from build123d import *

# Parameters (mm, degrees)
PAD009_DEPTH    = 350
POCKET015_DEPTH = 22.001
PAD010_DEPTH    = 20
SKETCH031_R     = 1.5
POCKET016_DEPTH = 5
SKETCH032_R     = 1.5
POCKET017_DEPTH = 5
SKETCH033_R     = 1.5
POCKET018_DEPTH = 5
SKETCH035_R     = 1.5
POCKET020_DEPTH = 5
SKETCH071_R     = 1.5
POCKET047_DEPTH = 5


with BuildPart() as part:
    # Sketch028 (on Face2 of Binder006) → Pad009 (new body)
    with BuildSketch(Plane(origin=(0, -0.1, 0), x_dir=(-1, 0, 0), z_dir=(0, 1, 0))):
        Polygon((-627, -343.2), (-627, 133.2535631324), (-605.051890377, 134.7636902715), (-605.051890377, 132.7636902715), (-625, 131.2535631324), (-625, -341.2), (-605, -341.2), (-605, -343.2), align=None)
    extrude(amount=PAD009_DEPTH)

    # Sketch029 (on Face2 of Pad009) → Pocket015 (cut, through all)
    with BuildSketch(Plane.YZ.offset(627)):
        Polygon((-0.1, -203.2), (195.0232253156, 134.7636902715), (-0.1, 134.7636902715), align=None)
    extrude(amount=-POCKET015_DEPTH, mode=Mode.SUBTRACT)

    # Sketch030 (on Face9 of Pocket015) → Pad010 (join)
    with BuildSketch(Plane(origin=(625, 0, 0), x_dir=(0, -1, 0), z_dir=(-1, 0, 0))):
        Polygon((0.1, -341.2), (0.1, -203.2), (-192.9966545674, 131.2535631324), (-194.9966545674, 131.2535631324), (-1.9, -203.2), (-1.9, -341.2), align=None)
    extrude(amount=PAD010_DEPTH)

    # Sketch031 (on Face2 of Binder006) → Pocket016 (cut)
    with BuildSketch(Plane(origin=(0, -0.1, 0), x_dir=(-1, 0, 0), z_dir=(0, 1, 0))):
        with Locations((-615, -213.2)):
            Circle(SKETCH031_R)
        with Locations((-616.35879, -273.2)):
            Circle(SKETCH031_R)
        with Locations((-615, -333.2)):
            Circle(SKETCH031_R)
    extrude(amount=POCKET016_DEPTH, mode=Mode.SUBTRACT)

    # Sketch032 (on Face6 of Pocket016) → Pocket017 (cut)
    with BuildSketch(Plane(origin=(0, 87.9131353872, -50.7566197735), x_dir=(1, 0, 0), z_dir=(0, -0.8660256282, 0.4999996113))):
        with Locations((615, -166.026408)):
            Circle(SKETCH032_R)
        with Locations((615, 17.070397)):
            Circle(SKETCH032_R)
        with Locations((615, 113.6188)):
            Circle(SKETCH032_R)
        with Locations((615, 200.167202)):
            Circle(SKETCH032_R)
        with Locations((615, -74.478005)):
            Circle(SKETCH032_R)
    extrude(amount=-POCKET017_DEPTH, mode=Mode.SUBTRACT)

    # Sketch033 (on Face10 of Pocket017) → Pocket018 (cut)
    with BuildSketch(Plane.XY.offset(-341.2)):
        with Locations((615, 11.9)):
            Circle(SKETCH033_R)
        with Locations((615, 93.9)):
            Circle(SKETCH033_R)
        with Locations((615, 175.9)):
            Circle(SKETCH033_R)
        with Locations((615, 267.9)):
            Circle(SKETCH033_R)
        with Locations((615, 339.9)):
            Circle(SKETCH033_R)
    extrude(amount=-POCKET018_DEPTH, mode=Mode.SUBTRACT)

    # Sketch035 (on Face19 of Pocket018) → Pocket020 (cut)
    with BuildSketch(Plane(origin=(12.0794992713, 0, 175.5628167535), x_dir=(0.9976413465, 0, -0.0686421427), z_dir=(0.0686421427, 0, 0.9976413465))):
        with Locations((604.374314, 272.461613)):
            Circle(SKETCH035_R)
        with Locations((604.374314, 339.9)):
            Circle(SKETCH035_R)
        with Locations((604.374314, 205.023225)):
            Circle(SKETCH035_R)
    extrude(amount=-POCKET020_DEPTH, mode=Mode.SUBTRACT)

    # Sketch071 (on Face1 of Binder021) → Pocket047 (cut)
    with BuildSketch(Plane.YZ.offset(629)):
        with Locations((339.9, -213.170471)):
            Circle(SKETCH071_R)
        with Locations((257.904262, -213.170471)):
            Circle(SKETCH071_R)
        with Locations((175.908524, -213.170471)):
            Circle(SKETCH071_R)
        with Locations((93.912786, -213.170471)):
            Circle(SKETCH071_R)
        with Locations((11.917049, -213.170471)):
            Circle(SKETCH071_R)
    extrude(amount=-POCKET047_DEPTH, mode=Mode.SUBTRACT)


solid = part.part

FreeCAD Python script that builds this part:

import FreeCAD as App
import Part
import Sketcher

V = App.Vector
Q = App.Units.Quantity


def add_polygon(sketch, points):
    """Adds a closed chain of lines whose ends are joined by coincident constraints."""
    first, n = sketch.GeometryCount, len(points)
    for a, b in zip(points, points[1:] + points[:1]):
        sketch.addGeometry(Part.LineSegment(App.Vector(*a, 0), App.Vector(*b, 0)), False)
    for i in range(n):
        sketch.addConstraint(Sketcher.Constraint("Coincident", first + i, 2, first + (i + 1) % n, 1))

doc = App.newDocument("Part")
body = doc.addObject("PartDesign::Body", "Body")

# Sketch on XZ plane
sketch1 = body.newObject("Sketcher::SketchObject", "Sketch")
sketch1.AttachmentSupport = (doc.getObject("XZ_Plane"), [""])
sketch1.MapMode = "FlatFace"
sketch1.AttachmentOffset = App.Placement(V(0, 0, 0.1), App.Rotation())
add_polygon(sketch1, [(627, 133.253563), (627, -343.2), (605, -343.2), (605, -341.2), (625, -341.2), (625, 131.253563), (605.05189, 132.76369), (605.05189, 134.76369)])  # lines 0-7
sketch1.addConstraint([
    Sketcher.Constraint("Vertical", 0),
    Sketcher.Constraint("Horizontal", 1),
    Sketcher.Constraint("Vertical", 2),
    Sketcher.Constraint("Horizontal", 3),
    Sketcher.Constraint("Vertical", 4),
    Sketcher.Constraint("Vertical", 6),
    Sketcher.Constraint("Equal", 2, 6),
    Sketcher.Constraint("DistanceX", 1, 2, 1, 1, Q("22 mm")),
    Sketcher.Constraint("DistanceX", 3, 1, 3, 2, Q("20 mm")),
    Sketcher.Constraint("DistanceY", 2, 1, 2, 2, Q("2 mm")),
    Sketcher.Constraint("Distance", 7, Q("22 mm")),
    Sketcher.Constraint("DistanceX", -1, 1, 0, 2, Q("627 mm")),
    Sketcher.Constraint("DistanceY", 4, 2, 7, 2, Q("2 mm")),
    Sketcher.Constraint("DistanceY", 0, 2, -1, 1, Q("343.2 mm")),
    Sketcher.Constraint("Distance", 5, Q("20.005188 mm")),
    Sketcher.Constraint("DistanceY", 0, 2, 0, 1, Q("476.453563 mm")),
])
pad1 = body.newObject("PartDesign::Pad", "Pad")
pad1.Profile = sketch1
pad1.Length = 350
pad1.Reversed = True

# Sketch on YZ plane
sketch2 = body.newObject("Sketcher::SketchObject", "Sketch001")
sketch2.AttachmentSupport = (doc.getObject("YZ_Plane"), [""])
sketch2.MapMode = "FlatFace"
sketch2.AttachmentOffset = App.Placement(V(0, 0, 627), App.Rotation())
add_polygon(sketch2, [(0, -203), (195, 135), (0, 135)])  # lines 0-2
sketch2.addConstraint([
    Sketcher.Constraint("Horizontal", 1),
    Sketcher.Constraint("Vertical", 2),
    Sketcher.Constraint("DistanceX", 1, 2, -1, 1, Q("0.1 mm")),
    Sketcher.Constraint("DistanceY", 2, 2, -1, 1, Q("203.2 mm")),
    Sketcher.Constraint("DistanceY", 2, 2, 2, 1, Q("337.96369 mm")),
    Sketcher.Constraint("DistanceX", 1, 2, 1, 1, Q("195.123225 mm")),
])
pocket1 = body.newObject("PartDesign::Pocket", "Pocket")
pocket1.Profile = sketch2
pocket1.Type = "ThroughAll"

# Sketch on YZ plane
sketch3 = body.newObject("Sketcher::SketchObject", "Sketch002")
sketch3.AttachmentSupport = (doc.getObject("YZ_Plane"), [""])
sketch3.MapMode = "FlatFace"
sketch3.AttachmentOffset = App.Placement(V(0, 0, 625), App.Rotation())
add_polygon(sketch3, [(-0.1, -341.2), (-0.1, -203.2), (193, 131.3), (195, 131.3), (1.9, -203.2), (1.9, -341.2)])  # lines 0-5
sketch3.addConstraint([
    Sketcher.Constraint("Vertical", 0),
    Sketcher.Constraint("Horizontal", 2),
    Sketcher.Constraint("Vertical", 4),
    Sketcher.Constraint("Horizontal", 5),
    Sketcher.Constraint("Parallel", 1, 3),
    Sketcher.Constraint("Horizontal", 0, 2, 3, 2),
    Sketcher.Constraint("DistanceX", 2, 1, 2, 2, Q("2 mm")),
    Sketcher.Constraint("DistanceY", 0, 1, 0, 2, Q("138 mm")),
    Sketcher.Constraint("DistanceX", 0, 2, -1, 1, Q("0.1 mm")),
    Sketcher.Constraint("DistanceY", 0, 2, -1, 1, Q("203.2 mm")),
    Sketcher.Constraint("Distance", 1, Q("386.193609 mm")),
    Sketcher.Constraint("DistanceX", -1, 1, 1, 2, Q("192.996655 mm")),
])
pad2 = body.newObject("PartDesign::Pad", "Pad001")
pad2.Profile = sketch3
pad2.Length = 20
pad2.Reversed = True

# Sketch on XZ plane
sketch4 = body.newObject("Sketcher::SketchObject", "Sketch003")
sketch4.AttachmentSupport = (doc.getObject("XZ_Plane"), [""])
sketch4.MapMode = "FlatFace"
sketch4.AttachmentOffset = App.Placement(V(0, 0, 0.1), App.Rotation())
sketch4.addGeometry([
    Part.Circle(V(615, -213.2, 0), V(0, 0, 1), 1.5),
    Part.Circle(V(616.4, -273.2, 0), V(0, 0, 1), 1.5),
    Part.Circle(V(615, -333.2, 0), V(0, 0, 1), 1.5),
], False)
sketch4.addConstraint([
    Sketcher.Constraint("Equal", 0, 1),
    Sketcher.Constraint("Equal", 1, 2),
    Sketcher.Constraint("Vertical", 0, 3, 2, 3),
    Sketcher.Constraint("Diameter", 0, Q("3 mm")),
    Sketcher.Constraint("DistanceX", -1, 1, 0, 3, Q("615 mm")),
    Sketcher.Constraint("DistanceY", 1, 3, 0, 3, Q("60 mm")),
    Sketcher.Constraint("DistanceY", 2, 3, 1, 3, Q("60 mm")),
    Sketcher.Constraint("DistanceY", 0, 3, -1, 1, Q("213.2 mm")),
    Sketcher.Constraint("DistanceX", -1, 1, 1, 3, Q("616.35879 mm")),
])
pocket2 = body.newObject("PartDesign::Pocket", "Pocket001")
pocket2.Profile = sketch4
pocket2.Length = 5

# Sketch on an angled plane
sketch5 = body.newObject("Sketcher::SketchObject", "Sketch004")
sketch5.Placement = App.Placement(V(0, 87.913135, -50.75662), App.Rotation(V(1, 0, 0), V(0, 0.499999611, 0.866025628), V(0, -0.866025628, 0.499999611), "ZXY"))
sketch5.addGeometry([
    Part.Circle(V(615, -166, 0), V(0, 0, 1), 1.5),  # 0
    Part.Circle(V(615, 17.1, 0), V(0, 0, 1), 1.5),  # 1
    Part.Circle(V(615, 113.6, 0), V(0, 0, 1), 1.5),  # 2
    Part.Circle(V(615, 200.2, 0), V(0, 0, 1), 1.5),  # 3
    Part.Circle(V(615, -74.5, 0), V(0, 0, 1), 1.5),  # 4
], False)
sketch5.addConstraint([
    Sketcher.Constraint("Equal", 0, 1),
    Sketcher.Constraint("Equal", 1, 2),
    Sketcher.Constraint("Equal", 2, 3),
    Sketcher.Constraint("Equal", 3, 4),
    Sketcher.Constraint("Vertical", 0, 3, 1, 3),
    Sketcher.Constraint("Vertical", 1, 3, 2, 3),
    Sketcher.Constraint("Vertical", 2, 3, 3, 3),
    Sketcher.Constraint("Vertical", 3, 3, 4, 3),
    Sketcher.Constraint("Diameter", 0, Q("3 mm")),
    Sketcher.Constraint("DistanceX", -1, 1, 0, 3, Q("615 mm")),
    Sketcher.Constraint("DistanceY", -1, 1, 2, 3, Q("113.6188 mm")),
    Sketcher.Constraint("DistanceY", -1, 1, 3, 3, Q("200.167202 mm")),
    Sketcher.Constraint("DistanceY", 4, 3, 1, 3, Q("91.548402 mm")),
    Sketcher.Constraint("DistanceY", 0, 3, 3, 3, Q("366.19361 mm")),
    Sketcher.Constraint("DistanceY", -1, 1, 1, 3, Q("17.070397 mm")),
])
pocket3 = body.newObject("PartDesign::Pocket", "Pocket002")
pocket3.Profile = sketch5
pocket3.Length = 5

# Sketch on XY plane
sketch6 = body.newObject("Sketcher::SketchObject", "Sketch005")
sketch6.AttachmentSupport = (doc.getObject("XY_Plane"), [""])
sketch6.MapMode = "FlatFace"
sketch6.AttachmentOffset = App.Placement(V(0, 0, -341.2), App.Rotation())
sketch6.addGeometry([
    Part.Circle(V(615, 11.9, 0), V(0, 0, 1), 1.5),  # 0
    Part.Circle(V(615, 93.9, 0), V(0, 0, 1), 1.5),  # 1
    Part.Circle(V(615, 175.9, 0), V(0, 0, 1), 1.5),  # 2
    Part.Circle(V(615, 267.9, 0), V(0, 0, 1), 1.5),  # 3
    Part.Circle(V(615, 339.9, 0), V(0, 0, 1), 1.5),  # 4
], False)
sketch6.addConstraint([
    Sketcher.Constraint("Equal", 0, 1),
    Sketcher.Constraint("Equal", 1, 2),
    Sketcher.Constraint("Equal", 2, 3),
    Sketcher.Constraint("Equal", 3, 4),
    Sketcher.Constraint("Vertical", 0, 3, 1, 3),
    Sketcher.Constraint("Vertical", 1, 3, 2, 3),
    Sketcher.Constraint("Vertical", 2, 3, 3, 3),
    Sketcher.Constraint("Vertical", 3, 3, 4, 3),
    Sketcher.Constraint("Diameter", 0, Q("3 mm")),
    Sketcher.Constraint("DistanceX", -1, 1, 0, 3, Q("615 mm")),
    Sketcher.Constraint("DistanceY", 0, 3, 1, 3, Q("82 mm")),
    Sketcher.Constraint("DistanceY", 1, 3, 2, 3, Q("82 mm")),
    Sketcher.Constraint("DistanceY", 2, 3, 3, 3, Q("92 mm")),
    Sketcher.Constraint("DistanceY", 3, 3, 4, 3, Q("72 mm")),
    Sketcher.Constraint("DistanceY", -1, 1, 0, 3, Q("11.9 mm")),
])
pocket4 = body.newObject("PartDesign::Pocket", "Pocket003")
pocket4.Profile = sketch6
pocket4.Length = 5

# Sketch on an angled plane
sketch7 = body.newObject("Sketcher::SketchObject", "Sketch006")
sketch7.Placement = App.Placement(V(12.079499, 0, 175.562817), App.Rotation(V(0.997641346, 0, -0.068642143), V(0, 0.999999999, 0), V(0.068642143, 0, 0.997641346), "ZXY"))
sketch7.addGeometry([
    Part.Circle(V(604.4, 272.5, 0), V(0, 0, 1), 1.5),
    Part.Circle(V(604.4, 339.9, 0), V(0, 0, 1), 1.5),
    Part.Circle(V(604.4, 205, 0), V(0, 0, 1), 1.5),
], False)
sketch7.addConstraint([
    Sketcher.Constraint("Equal", 0, 1),
    Sketcher.Constraint("Equal", 1, 2),
    Sketcher.Constraint("Vertical", 0, 3, 1, 3),
    Sketcher.Constraint("Vertical", 1, 3, 2, 3),
    Sketcher.Constraint("Diameter", 0, Q("3 mm")),
    Sketcher.Constraint("DistanceY", -1, 1, 1, 3, Q("339.899999 mm")),
    Sketcher.Constraint("DistanceX", -1, 1, 0, 3, Q("604.374313 mm")),
    Sketcher.Constraint("DistanceY", -1, 1, 0, 3, Q("272.461612 mm")),
    Sketcher.Constraint("DistanceY", -1, 1, 2, 3, Q("205.023225 mm")),
])
pocket5 = body.newObject("PartDesign::Pocket", "Pocket004")
pocket5.Profile = sketch7
pocket5.Length = 5

# Sketch on YZ plane
sketch8 = body.newObject("Sketcher::SketchObject", "Sketch007")
sketch8.AttachmentSupport = (doc.getObject("YZ_Plane"), [""])
sketch8.MapMode = "FlatFace"
sketch8.AttachmentOffset = App.Placement(V(0, 0, 629), App.Rotation())
sketch8.addGeometry([
    Part.Circle(V(339.9, -213.2, 0), V(0, 0, 1), 1.5),  # 0
    Part.Circle(V(257.9, -213.2, 0), V(0, 0, 1), 1.5),  # 1
    Part.Circle(V(175.9, -213.2, 0), V(0, 0, 1), 1.5),  # 2
    Part.Circle(V(93.9, -213.2, 0), V(0, 0, 1), 1.5),  # 3
    Part.Circle(V(11.9, -213.2, 0), V(0, 0, 1), 1.5),  # 4
], False)
sketch8.addConstraint([
    Sketcher.Constraint("Equal", 0, 1),
    Sketcher.Constraint("Equal", 1, 2),
    Sketcher.Constraint("Equal", 2, 3),
    Sketcher.Constraint("Equal", 3, 4),
    Sketcher.Constraint("Horizontal", 0, 3, 1, 3),
    Sketcher.Constraint("Horizontal", 1, 3, 2, 3),
    Sketcher.Constraint("Horizontal", 2, 3, 3, 3),
    Sketcher.Constraint("Horizontal", 3, 3, 4, 3),
    Sketcher.Constraint("Diameter", 0, Q("3 mm")),
    Sketcher.Constraint("DistanceX", -1, 1, 0, 3, Q("339.9 mm")),
    Sketcher.Constraint("DistanceY", 0, 3, -1, 1, Q("213.170471 mm")),
    Sketcher.Constraint("DistanceX", -1, 1, 1, 3, Q("257.904262 mm")),
    Sketcher.Constraint("DistanceX", -1, 1, 4, 3, Q("11.917049 mm")),
    Sketcher.Constraint("DistanceX", 2, 3, 1, 3, Q("81.995738 mm")),
    Sketcher.Constraint("DistanceX", 3, 3, 2, 3, Q("81.995738 mm")),
])
pocket6 = body.newObject("PartDesign::Pocket", "Pocket005")
pocket6.Profile = sketch8
pocket6.Length = 5

doc.recompute()
